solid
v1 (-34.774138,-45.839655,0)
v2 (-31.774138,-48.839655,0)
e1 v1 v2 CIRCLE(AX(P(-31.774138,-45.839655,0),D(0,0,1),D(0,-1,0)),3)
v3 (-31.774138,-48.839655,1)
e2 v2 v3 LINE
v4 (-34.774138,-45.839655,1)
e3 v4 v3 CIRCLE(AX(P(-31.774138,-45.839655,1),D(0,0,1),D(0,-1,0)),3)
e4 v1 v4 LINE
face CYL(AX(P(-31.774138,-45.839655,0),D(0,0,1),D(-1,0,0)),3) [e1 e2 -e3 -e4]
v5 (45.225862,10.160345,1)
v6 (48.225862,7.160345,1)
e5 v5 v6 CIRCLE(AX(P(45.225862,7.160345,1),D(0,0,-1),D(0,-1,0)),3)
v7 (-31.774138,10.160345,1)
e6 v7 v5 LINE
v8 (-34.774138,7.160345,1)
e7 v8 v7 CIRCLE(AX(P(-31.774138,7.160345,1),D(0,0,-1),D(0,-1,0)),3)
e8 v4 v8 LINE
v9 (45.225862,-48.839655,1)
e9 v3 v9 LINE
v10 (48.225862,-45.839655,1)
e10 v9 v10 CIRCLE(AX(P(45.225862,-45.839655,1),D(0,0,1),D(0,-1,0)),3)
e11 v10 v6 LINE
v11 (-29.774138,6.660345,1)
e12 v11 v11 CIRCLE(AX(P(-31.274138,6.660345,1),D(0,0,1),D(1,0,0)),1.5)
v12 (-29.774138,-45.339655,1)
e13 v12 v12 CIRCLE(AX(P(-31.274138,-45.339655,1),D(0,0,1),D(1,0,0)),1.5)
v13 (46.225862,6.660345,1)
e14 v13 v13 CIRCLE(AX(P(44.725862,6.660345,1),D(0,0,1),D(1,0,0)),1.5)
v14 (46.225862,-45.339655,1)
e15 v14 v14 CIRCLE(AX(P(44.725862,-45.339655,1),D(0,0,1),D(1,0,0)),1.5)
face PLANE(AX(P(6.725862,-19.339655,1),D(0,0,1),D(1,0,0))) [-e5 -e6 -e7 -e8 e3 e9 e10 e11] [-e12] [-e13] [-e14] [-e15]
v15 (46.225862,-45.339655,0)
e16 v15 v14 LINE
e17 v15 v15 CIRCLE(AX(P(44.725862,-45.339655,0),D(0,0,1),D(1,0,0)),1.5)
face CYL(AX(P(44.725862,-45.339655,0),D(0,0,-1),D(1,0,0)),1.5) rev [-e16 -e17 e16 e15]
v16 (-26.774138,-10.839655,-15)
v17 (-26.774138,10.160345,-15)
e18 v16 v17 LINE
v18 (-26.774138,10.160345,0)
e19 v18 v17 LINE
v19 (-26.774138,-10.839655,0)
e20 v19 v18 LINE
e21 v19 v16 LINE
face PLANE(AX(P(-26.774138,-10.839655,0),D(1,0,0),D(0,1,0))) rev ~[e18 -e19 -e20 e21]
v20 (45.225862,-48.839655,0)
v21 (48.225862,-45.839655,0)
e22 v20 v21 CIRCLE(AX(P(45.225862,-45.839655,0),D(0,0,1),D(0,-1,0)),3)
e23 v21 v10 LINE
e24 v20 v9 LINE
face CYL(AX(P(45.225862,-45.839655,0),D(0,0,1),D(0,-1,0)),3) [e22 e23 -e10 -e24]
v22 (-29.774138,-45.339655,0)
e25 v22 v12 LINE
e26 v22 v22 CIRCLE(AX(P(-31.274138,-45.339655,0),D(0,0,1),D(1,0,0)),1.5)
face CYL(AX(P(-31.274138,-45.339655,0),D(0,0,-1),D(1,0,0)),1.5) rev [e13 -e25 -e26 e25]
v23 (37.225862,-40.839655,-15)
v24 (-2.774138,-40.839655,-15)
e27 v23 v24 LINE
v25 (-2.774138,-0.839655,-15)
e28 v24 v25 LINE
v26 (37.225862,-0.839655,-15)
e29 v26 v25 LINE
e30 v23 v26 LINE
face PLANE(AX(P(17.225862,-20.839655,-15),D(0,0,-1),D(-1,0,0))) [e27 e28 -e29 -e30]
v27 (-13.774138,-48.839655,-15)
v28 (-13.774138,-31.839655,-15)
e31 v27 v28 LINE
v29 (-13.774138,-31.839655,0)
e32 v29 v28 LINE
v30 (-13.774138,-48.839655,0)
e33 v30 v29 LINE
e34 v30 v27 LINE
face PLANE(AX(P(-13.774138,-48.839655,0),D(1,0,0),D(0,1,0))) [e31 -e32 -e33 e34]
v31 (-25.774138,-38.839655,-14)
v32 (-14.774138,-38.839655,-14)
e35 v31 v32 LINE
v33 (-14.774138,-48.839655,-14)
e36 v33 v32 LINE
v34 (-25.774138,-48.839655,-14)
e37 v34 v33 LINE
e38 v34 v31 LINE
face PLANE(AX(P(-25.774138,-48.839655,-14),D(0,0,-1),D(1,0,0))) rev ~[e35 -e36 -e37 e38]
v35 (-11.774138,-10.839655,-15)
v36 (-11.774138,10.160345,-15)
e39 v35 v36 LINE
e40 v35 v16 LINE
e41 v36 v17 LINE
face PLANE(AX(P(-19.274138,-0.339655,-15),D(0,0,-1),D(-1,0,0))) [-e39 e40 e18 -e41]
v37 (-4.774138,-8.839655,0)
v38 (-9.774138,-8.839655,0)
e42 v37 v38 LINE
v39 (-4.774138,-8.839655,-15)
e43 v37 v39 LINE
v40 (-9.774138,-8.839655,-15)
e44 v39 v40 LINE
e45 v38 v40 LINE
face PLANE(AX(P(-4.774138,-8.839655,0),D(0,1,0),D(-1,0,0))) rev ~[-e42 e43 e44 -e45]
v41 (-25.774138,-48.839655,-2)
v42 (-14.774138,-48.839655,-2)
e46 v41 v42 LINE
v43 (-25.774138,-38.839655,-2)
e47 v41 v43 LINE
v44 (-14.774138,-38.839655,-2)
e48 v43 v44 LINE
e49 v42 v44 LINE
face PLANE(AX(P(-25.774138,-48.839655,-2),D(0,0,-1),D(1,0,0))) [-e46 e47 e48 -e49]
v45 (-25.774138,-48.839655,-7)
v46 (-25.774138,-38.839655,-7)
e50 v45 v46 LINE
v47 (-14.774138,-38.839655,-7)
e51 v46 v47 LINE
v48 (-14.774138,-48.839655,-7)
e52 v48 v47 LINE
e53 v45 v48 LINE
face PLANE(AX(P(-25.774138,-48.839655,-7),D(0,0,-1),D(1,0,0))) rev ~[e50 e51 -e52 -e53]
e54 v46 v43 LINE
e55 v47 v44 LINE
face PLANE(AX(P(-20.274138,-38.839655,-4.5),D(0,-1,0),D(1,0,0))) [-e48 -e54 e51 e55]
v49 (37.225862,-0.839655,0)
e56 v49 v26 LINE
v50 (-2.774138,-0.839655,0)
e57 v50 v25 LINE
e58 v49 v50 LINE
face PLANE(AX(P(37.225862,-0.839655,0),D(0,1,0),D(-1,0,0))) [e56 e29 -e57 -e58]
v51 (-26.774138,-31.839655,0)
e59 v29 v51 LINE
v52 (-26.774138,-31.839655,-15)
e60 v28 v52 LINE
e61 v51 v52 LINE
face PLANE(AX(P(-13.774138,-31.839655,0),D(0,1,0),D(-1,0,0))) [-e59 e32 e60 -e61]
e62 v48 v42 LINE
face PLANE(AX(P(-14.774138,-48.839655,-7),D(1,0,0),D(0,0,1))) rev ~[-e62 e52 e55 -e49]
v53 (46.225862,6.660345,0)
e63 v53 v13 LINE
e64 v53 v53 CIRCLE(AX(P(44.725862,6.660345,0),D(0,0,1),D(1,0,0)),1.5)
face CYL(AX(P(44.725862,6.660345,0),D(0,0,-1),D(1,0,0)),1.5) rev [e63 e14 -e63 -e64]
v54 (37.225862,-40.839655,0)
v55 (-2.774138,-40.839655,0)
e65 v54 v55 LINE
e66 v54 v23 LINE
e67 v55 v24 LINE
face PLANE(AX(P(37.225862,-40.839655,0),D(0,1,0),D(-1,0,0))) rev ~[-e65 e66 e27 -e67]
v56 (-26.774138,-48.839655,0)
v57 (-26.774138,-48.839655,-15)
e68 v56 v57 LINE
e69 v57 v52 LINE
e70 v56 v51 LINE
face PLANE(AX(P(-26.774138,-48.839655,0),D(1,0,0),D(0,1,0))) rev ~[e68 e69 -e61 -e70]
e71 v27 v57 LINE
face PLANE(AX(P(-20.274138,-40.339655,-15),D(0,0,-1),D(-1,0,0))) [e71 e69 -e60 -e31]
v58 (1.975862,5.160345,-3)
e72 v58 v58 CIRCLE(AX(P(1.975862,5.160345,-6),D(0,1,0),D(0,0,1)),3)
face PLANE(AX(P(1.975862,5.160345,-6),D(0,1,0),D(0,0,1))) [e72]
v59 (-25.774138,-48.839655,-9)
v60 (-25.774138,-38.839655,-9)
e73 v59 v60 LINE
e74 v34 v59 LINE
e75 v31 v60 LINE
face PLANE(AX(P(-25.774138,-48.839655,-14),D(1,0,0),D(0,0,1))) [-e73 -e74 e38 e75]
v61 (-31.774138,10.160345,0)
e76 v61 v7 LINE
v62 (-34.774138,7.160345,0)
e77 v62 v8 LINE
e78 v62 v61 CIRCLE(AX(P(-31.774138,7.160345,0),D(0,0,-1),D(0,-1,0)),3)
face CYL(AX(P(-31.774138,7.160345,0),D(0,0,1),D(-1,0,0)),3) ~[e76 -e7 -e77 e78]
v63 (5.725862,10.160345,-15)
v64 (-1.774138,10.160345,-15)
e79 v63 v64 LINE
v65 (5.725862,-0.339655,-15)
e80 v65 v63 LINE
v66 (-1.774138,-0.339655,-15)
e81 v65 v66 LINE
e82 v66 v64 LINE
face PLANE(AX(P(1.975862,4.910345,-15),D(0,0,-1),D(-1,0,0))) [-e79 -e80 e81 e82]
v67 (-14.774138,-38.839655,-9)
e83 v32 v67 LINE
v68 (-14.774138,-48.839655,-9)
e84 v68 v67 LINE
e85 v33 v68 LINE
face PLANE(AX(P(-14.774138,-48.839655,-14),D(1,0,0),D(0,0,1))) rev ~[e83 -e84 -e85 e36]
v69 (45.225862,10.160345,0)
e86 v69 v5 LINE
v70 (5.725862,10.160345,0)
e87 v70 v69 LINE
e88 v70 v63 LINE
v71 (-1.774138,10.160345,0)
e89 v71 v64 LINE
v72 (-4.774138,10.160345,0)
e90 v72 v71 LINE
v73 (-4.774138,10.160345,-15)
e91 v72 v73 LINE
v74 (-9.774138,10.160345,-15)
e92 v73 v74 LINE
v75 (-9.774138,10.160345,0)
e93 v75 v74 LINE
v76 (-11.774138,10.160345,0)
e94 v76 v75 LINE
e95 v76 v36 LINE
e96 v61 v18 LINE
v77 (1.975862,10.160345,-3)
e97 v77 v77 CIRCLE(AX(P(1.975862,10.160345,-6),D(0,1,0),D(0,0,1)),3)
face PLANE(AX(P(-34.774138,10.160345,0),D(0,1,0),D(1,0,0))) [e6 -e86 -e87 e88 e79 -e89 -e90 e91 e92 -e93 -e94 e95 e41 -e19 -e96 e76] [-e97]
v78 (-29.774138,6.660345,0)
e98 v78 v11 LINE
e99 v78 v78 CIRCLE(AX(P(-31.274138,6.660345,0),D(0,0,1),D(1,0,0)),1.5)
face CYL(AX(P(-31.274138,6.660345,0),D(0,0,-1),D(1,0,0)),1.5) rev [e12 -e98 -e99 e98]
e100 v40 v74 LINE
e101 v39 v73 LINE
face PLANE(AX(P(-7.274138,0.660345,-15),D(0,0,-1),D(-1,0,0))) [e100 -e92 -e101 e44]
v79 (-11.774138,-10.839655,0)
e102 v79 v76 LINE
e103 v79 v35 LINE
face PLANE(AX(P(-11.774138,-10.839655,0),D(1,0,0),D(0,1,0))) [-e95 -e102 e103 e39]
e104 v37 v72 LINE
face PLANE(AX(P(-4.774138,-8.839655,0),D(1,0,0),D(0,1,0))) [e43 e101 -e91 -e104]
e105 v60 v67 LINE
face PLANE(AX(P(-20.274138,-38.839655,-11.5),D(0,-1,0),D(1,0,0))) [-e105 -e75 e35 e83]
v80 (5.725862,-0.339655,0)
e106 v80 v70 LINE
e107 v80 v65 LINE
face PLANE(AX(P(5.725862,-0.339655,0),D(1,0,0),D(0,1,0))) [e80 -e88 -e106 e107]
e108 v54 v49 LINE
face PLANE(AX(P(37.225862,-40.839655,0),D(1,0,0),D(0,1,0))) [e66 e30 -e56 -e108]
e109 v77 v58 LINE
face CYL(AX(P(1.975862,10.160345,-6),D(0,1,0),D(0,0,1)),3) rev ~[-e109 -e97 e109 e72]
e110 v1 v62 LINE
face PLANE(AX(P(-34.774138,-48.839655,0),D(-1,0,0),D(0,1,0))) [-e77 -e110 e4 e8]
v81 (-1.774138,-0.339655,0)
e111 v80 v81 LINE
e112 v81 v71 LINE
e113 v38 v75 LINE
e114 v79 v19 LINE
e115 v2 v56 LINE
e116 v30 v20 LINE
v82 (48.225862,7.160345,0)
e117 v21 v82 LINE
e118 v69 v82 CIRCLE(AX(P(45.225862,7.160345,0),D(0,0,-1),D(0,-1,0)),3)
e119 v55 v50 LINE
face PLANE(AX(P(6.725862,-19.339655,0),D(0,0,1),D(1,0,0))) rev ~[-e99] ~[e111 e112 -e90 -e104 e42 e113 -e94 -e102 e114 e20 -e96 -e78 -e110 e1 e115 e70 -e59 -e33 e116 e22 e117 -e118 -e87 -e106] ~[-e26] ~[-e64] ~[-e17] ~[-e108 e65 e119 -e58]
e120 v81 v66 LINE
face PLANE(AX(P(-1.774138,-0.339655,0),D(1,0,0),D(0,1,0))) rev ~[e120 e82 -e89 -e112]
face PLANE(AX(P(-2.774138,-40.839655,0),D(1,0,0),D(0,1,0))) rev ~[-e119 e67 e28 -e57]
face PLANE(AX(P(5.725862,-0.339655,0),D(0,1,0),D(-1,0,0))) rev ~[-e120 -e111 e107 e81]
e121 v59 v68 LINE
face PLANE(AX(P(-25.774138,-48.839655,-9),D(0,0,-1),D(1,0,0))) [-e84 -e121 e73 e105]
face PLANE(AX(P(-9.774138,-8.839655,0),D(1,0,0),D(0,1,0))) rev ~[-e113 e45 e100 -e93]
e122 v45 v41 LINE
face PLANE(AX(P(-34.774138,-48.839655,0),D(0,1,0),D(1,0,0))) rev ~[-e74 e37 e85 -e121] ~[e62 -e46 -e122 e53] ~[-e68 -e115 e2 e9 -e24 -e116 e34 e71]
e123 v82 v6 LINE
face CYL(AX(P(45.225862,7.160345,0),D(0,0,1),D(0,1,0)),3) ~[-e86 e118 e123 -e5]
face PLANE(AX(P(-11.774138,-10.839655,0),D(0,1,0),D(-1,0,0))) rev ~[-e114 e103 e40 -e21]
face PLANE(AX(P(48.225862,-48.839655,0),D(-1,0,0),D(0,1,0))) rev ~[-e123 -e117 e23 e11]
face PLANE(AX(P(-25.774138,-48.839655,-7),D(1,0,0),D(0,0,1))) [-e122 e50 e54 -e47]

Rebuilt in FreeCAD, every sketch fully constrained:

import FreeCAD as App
import Part
import Sketcher
Q = App.Units.Quantity


def edges_at(feature, points):
    """Names of the edges that pass closest to the given points."""
    edges = feature.Shape.Edges
    near = lambda p: min(range(len(edges)), key=lambda i: edges[i].distToShape(Part.Vertex(*p))[0])
    return sorted({f"Edge{near(p) + 1}" for p in points})

doc = App.newDocument("Part")
body = doc.addObject("PartDesign::Body", "Body")

sketch1 = body.newObject("Sketcher::SketchObject", "Sketch")
sketch1.AttachmentSupport = (doc.getObject("XY_Plane"), [""])
sketch1.MapMode = "FlatFace"
sketch1.addGeometry([
    Part.LineSegment(App.Vector(-34.774138, 10.160345, 0), App.Vector(-34.774138, -48.839655, 0)),
    Part.LineSegment(App.Vector(-34.774138, -48.839655, 0), App.Vector(48.225862, -48.839655, 0)),
    Part.LineSegment(App.Vector(48.225862, -48.839655, 0), App.Vector(48.225862, 10.160345, 0)),
    Part.LineSegment(App.Vector(48.225862, 10.160345, 0), App.Vector(-34.774138, 10.160345, 0)),
    Part.Circle(App.Vector(-31.274138, -45.339655, 0), App.Vector(0, 0, 1), 1.5),
    Part.Circle(App.Vector(44.725862, -45.339655, 0), App.Vector(0, 0, 1), 1.5),
    Part.Circle(App.Vector(-31.274138, 6.660345, 0), App.Vector(0, 0, 1), 1.5),
    Part.Circle(App.Vector(44.725862, 6.660345, 0), App.Vector(0, 0, 1), 1.5),
], False)
sketch1.addConstraint([
    Sketcher.Constraint("Coincident", 0, 2, 1, 1),
    Sketcher.Constraint("Coincident", 1, 2, 2, 1),
    Sketcher.Constraint("Coincident", 2, 2, 3, 1),
    Sketcher.Constraint("Coincident", 3, 2, 0, 1),
    Sketcher.Constraint("Vertical", 0),
    Sketcher.Constraint("Horizontal", 1),
    Sketcher.Constraint("Vertical", 2),
    Sketcher.Constraint("Horizontal", 3),
    Sketcher.Constraint("Equal", 4, 5),
    Sketcher.Constraint("Equal", 5, 6),
    Sketcher.Constraint("Equal", 6, 7),
    Sketcher.Constraint("Horizontal", 4, 3, 5, 3),
    Sketcher.Constraint("Horizontal", 6, 3, 7, 3),
    Sketcher.Constraint("Vertical", 4, 3, 6, 3),
    Sketcher.Constraint("Vertical", 5, 3, 7, 3),
    Sketcher.Constraint("Diameter", 4, Q("3 mm")),
    Sketcher.Constraint("DistanceX", 1, 1, 1, 2, Q("83 mm")),
    Sketcher.Constraint("DistanceY", 0, 2, 0, 1, Q("59 mm")),
    Sketcher.Constraint("DistanceX", 4, 3, 5, 3, Q("76 mm")),
    Sketcher.Constraint("DistanceY", 4, 3, 6, 3, Q("52 mm")),
    Sketcher.Constraint("DistanceX", 0, 2, 4, 3, Q("3.5 mm")),
    Sketcher.Constraint("DistanceY", 0, 2, 4, 3, Q("3.5 mm")),
    Sketcher.Constraint("DistanceX", 4, 3, -1, 1, Q("31.274138 mm")),
    Sketcher.Constraint("DistanceY", 4, 3, -1, 1, Q("45.339655 mm")),
])
pad1 = body.newObject("PartDesign::Pad", "Pad")
pad1.Profile = sketch1
pad1.Length = 1

sketch2 = body.newObject("Sketcher::SketchObject", "Sketch001")
sketch2.AttachmentSupport = (doc.getObject("XY_Plane"), [""])
sketch2.MapMode = "FlatFace"
sketch2.addGeometry([
    Part.LineSegment(App.Vector(-11.774138, 10.160345, 0), App.Vector(-11.774138, -10.839655, 0)),
    Part.LineSegment(App.Vector(-11.774138, -10.839655, 0), App.Vector(-26.774138, -10.839655, 0)),
    Part.LineSegment(App.Vector(-26.774138, -10.839655, 0), App.Vector(-26.774138, 10.160345, 0)),
    Part.LineSegment(App.Vector(-26.774138, 10.160345, 0), App.Vector(-11.774138, 10.160345, 0)),
    Part.LineSegment(App.Vector(-13.774138, -31.839655, 0), App.Vector(-13.774138, -48.839655, 0)),
    Part.LineSegment(App.Vector(-13.774138, -48.839655, 0), App.Vector(-26.774138, -48.839655, 0)),
    Part.LineSegment(App.Vector(-26.774138, -48.839655, 0), App.Vector(-26.774138, -31.839655, 0)),
    Part.LineSegment(App.Vector(-26.774138, -31.839655, 0), App.Vector(-13.774138, -31.839655, 0)),
    Part.LineSegment(App.Vector(-4.774138, 10.160345, 0), App.Vector(-4.774138, -8.839655, 0)),
    Part.LineSegment(App.Vector(-4.774138, -8.839655, 0), App.Vector(-9.774138, -8.839655, 0)),
    Part.LineSegment(App.Vector(-9.774138, -8.839655, 0), App.Vector(-9.774138, 10.160345, 0)),
    Part.LineSegment(App.Vector(-9.774138, 10.160345, 0), App.Vector(-4.774138, 10.160345, 0)),
    Part.LineSegment(App.Vector(5.725862, 10.160345, 0), App.Vector(5.725862, -0.339655, 0)),
    Part.LineSegment(App.Vector(5.725862, -0.339655, 0), App.Vector(-1.774138, -0.339655, 0)),
    Part.LineSegment(App.Vector(-1.774138, -0.339655, 0), App.Vector(-1.774138, 10.160345, 0)),
    Part.LineSegment(App.Vector(-1.774138, 10.160345, 0), App.Vector(5.725862, 10.160345, 0)),
    Part.LineSegment(App.Vector(37.225862, -0.839655, 0), App.Vector(37.225862, -40.839655, 0)),
    Part.LineSegment(App.Vector(37.225862, -40.839655, 0), App.Vector(-2.774138, -40.839655, 0)),
    Part.LineSegment(App.Vector(-2.774138, -40.839655, 0), App.Vector(-2.774138, -0.839655, 0)),
    Part.LineSegment(App.Vector(-2.774138, -0.839655, 0), App.Vector(37.225862, -0.839655, 0)),
], False)
sketch2.addConstraint([
    Sketcher.Constraint("Coincident", 0, 2, 1, 1),
    Sketcher.Constraint("Coincident", 1, 2, 2, 1),
    Sketcher.Constraint("Coincident", 2, 2, 3, 1),
    Sketcher.Constraint("Coincident", 3, 2, 0, 1),
    Sketcher.Constraint("Coincident", 4, 2, 5, 1),
    Sketcher.Constraint("Coincident", 5, 2, 6, 1),
    Sketcher.Constraint("Coincident", 6, 2, 7, 1),
    Sketcher.Constraint("Coincident", 7, 2, 4, 1),
    Sketcher.Constraint("Coincident", 8, 2, 9, 1),
    Sketcher.Constraint("Coincident", 9, 2, 10, 1),
    Sketcher.Constraint("Coincident", 10, 2, 11, 1),
    Sketcher.Constraint("Coincident", 11, 2, 8, 1),
    Sketcher.Constraint("Coincident", 12, 2, 13, 1),
    Sketcher.Constraint("Coincident", 13, 2, 14, 1),
    Sketcher.Constraint("Coincident", 14, 2, 15, 1),
    Sketcher.Constraint("Coincident", 15, 2, 12, 1),
    Sketcher.Constraint("Coincident", 16, 2, 17, 1),
    Sketcher.Constraint("Coincident", 17, 2, 18, 1),
    Sketcher.Constraint("Coincident", 18, 2, 19, 1),
    Sketcher.Constraint("Coincident", 19, 2, 16, 1),
    Sketcher.Constraint("Vertical", 0),
    Sketcher.Constraint("Horizontal", 1),
    Sketcher.Constraint("Vertical", 2),
    Sketcher.Constraint("Horizontal", 3),
    Sketcher.Constraint("Vertical", 4),
    Sketcher.Constraint("Horizontal", 5),
    Sketcher.Constraint("Vertical", 6),
    Sketcher.Constraint("Horizontal", 7),
    Sketcher.Constraint("Vertical", 8),
    Sketcher.Constraint("Horizontal", 9),
    Sketcher.Constraint("Vertical", 10),
    Sketcher.Constraint("Horizontal", 11),
    Sketcher.Constraint("Vertical", 12),
    Sketcher.Constraint("Horizontal", 13),
    Sketcher.Constraint("Vertical", 14),
    Sketcher.Constraint("Horizontal", 15),
    Sketcher.Constraint("Vertical", 16),
    Sketcher.Constraint("Horizontal", 17),
    Sketcher.Constraint("Vertical", 18),
    Sketcher.Constraint("Horizontal", 19),
    Sketcher.Constraint("Horizontal", 3, 2, 10, 2),
    Sketcher.Constraint("Horizontal", 11, 2, 14, 2),
    Sketcher.Constraint("Vertical", 2, 2, 5, 2),
    Sketcher.Constraint("Equal", 19, 16),
    Sketcher.Constraint("DistanceX", 1, 2, 1, 1, Q("15 mm")),
    Sketcher.Constraint("DistanceX", 5, 2, 5, 1, Q("13 mm")),
    Sketcher.Constraint("DistanceX", 9, 2, 9, 1, Q("5 mm")),
    Sketcher.Constraint("DistanceX", 17, 2, 17, 1, Q("40 mm")),
    Sketcher.Constraint("DistanceY", 0, 2, 0, 1, Q("21 mm")),
    Sketcher.Constraint("DistanceY", 4, 2, 4, 1, Q("17 mm")),
    Sketcher.Constraint("DistanceY", 8, 2, 8, 1, Q("19 mm")),
    Sketcher.Constraint("DistanceX", 13, 2, 13, 1, Q("7.5 mm")),
    Sketcher.Constraint("DistanceY", 12, 2, 12, 1, Q("10.5 mm")),
    Sketcher.Constraint("DistanceY", 4, 2, 0, 2, Q("38 mm")),
    Sketcher.Constraint("DistanceX", 0, 2, 8, 2, Q("7 mm")),
    Sketcher.Constraint("DistanceX", 8, 2, 13, 2, Q("3 mm")),
    Sketcher.Constraint("DistanceX", 4, 2, 16, 2, Q("51 mm")),
    Sketcher.Constraint("DistanceY", 4, 2, 16, 2, Q("8 mm")),
    Sketcher.Constraint("DistanceX", 0, 2, -1, 1, Q("11.774138 mm")),
    Sketcher.Constraint("DistanceY", 0, 2, -1, 1, Q("10.839655 mm")),
])
pad2 = body.newObject("PartDesign::Pad", "Pad001")
pad2.Profile = sketch2
pad2.Length = 15
pad2.Reversed = True

sketch3 = body.newObject("Sketcher::SketchObject", "Sketch002")
sketch3.AttachmentSupport = (doc.getObject("XZ_Plane"), [""])
sketch3.MapMode = "FlatFace"
sketch3.AttachmentOffset = App.Placement(App.Vector(0, 0, -10.160345), App.Rotation())
sketch3.addGeometry(Part.Circle(App.Vector(1.975862, -6, 0), App.Vector(0, 0, 1), 3), False)
sketch3.addConstraint([
    Sketcher.Constraint("Diameter", 0, Q("6 mm")),
    Sketcher.Constraint("DistanceY", 0, 3, -1, 1, Q("6 mm")),
    Sketcher.Constraint("DistanceX", -1, 1, 0, 3, Q("1.975862 mm")),
])
pocket1 = body.newObject("PartDesign::Pocket", "Pocket")
pocket1.Profile = sketch3
pocket1.Length = 5
pocket1.Reversed = True

sketch4 = body.newObject("Sketcher::SketchObject", "Sketch003")
sketch4.AttachmentSupport = (doc.getObject("XZ_Plane"), [""])
sketch4.MapMode = "FlatFace"
sketch4.AttachmentOffset = App.Placement(App.Vector(0, 0, 48.839655), App.Rotation())
sketch4.addGeometry([
    Part.LineSegment(App.Vector(-25.774138, -2, 0), App.Vector(-25.774138, -7, 0)),
    Part.LineSegment(App.Vector(-25.774138, -7, 0), App.Vector(-14.774138, -7, 0)),
    Part.LineSegment(App.Vector(-14.774138, -7, 0), App.Vector(-14.774138, -2, 0)),
    Part.LineSegment(App.Vector(-14.774138, -2, 0), App.Vector(-25.774138, -2, 0)),
    Part.LineSegment(App.Vector(-25.774138, -9, 0), App.Vector(-25.774138, -14, 0)),
    Part.LineSegment(App.Vector(-25.774138, -14, 0), App.Vector(-14.774138, -14, 0)),
    Part.LineSegment(App.Vector(-14.774138, -14, 0), App.Vector(-14.774138, -9, 0)),
    Part.LineSegment(App.Vector(-14.774138, -9, 0), App.Vector(-25.774138, -9, 0)),
], False)
sketch4.addConstraint([
    Sketcher.Constraint("Coincident", 0, 2, 1, 1),
    Sketcher.Constraint("Coincident", 1, 2, 2, 1),
    Sketcher.Constraint("Coincident", 2, 2, 3, 1),
    Sketcher.Constraint("Coincident", 3, 2, 0, 1),
    Sketcher.Constraint("Coincident", 4, 2, 5, 1),
    Sketcher.Constraint("Coincident", 5, 2, 6, 1),
    Sketcher.Constraint("Coincident", 6, 2, 7, 1),
    Sketcher.Constraint("Coincident", 7, 2, 4, 1),
    Sketcher.Constraint("Vertical", 0),
    Sketcher.Constraint("Horizontal", 1),
    Sketcher.Constraint("Vertical", 2),
    Sketcher.Constraint("Horizontal", 3),
    Sketcher.Constraint("Vertical", 4),
    Sketcher.Constraint("Horizontal", 5),
    Sketcher.Constraint("Vertical", 6),
    Sketcher.Constraint("Horizontal", 7),
    Sketcher.Constraint("Vertical", 3, 2, 4, 2),
    Sketcher.Constraint("Vertical", 2, 2, 5, 2),
    Sketcher.Constraint("Equal", 2, 4),
    Sketcher.Constraint("DistanceX", 1, 1, 1, 2, Q("11 mm")),
    Sketcher.Constraint("DistanceY", 0, 2, 0, 1, Q("5 mm")),
    Sketcher.Constraint("DistanceY", 0, 2, -1, 1, Q("7 mm")),
    Sketcher.Constraint("DistanceY", 4, 2, -1, 1, Q("14 mm")),
    Sketcher.Constraint("DistanceX", 0, 2, -1, 1, Q("25.774138 mm")),
])
pocket2 = body.newObject("PartDesign::Pocket", "Pocket001")
pocket2.Profile = sketch4
pocket2.Length = 10
doc.recompute()

fillet = body.newObject("PartDesign::Fillet", "Fillet")
fillet.Base = (pocket2, edges_at(pocket2, [
    (48.226, -48.84, 0.5),
    (-34.774, -48.84, 0.5),
    (-34.774, 10.16, 0.5),
    (48.226, 10.16, 0.5),
]))
fillet.Radius = 3

doc.recompute()
